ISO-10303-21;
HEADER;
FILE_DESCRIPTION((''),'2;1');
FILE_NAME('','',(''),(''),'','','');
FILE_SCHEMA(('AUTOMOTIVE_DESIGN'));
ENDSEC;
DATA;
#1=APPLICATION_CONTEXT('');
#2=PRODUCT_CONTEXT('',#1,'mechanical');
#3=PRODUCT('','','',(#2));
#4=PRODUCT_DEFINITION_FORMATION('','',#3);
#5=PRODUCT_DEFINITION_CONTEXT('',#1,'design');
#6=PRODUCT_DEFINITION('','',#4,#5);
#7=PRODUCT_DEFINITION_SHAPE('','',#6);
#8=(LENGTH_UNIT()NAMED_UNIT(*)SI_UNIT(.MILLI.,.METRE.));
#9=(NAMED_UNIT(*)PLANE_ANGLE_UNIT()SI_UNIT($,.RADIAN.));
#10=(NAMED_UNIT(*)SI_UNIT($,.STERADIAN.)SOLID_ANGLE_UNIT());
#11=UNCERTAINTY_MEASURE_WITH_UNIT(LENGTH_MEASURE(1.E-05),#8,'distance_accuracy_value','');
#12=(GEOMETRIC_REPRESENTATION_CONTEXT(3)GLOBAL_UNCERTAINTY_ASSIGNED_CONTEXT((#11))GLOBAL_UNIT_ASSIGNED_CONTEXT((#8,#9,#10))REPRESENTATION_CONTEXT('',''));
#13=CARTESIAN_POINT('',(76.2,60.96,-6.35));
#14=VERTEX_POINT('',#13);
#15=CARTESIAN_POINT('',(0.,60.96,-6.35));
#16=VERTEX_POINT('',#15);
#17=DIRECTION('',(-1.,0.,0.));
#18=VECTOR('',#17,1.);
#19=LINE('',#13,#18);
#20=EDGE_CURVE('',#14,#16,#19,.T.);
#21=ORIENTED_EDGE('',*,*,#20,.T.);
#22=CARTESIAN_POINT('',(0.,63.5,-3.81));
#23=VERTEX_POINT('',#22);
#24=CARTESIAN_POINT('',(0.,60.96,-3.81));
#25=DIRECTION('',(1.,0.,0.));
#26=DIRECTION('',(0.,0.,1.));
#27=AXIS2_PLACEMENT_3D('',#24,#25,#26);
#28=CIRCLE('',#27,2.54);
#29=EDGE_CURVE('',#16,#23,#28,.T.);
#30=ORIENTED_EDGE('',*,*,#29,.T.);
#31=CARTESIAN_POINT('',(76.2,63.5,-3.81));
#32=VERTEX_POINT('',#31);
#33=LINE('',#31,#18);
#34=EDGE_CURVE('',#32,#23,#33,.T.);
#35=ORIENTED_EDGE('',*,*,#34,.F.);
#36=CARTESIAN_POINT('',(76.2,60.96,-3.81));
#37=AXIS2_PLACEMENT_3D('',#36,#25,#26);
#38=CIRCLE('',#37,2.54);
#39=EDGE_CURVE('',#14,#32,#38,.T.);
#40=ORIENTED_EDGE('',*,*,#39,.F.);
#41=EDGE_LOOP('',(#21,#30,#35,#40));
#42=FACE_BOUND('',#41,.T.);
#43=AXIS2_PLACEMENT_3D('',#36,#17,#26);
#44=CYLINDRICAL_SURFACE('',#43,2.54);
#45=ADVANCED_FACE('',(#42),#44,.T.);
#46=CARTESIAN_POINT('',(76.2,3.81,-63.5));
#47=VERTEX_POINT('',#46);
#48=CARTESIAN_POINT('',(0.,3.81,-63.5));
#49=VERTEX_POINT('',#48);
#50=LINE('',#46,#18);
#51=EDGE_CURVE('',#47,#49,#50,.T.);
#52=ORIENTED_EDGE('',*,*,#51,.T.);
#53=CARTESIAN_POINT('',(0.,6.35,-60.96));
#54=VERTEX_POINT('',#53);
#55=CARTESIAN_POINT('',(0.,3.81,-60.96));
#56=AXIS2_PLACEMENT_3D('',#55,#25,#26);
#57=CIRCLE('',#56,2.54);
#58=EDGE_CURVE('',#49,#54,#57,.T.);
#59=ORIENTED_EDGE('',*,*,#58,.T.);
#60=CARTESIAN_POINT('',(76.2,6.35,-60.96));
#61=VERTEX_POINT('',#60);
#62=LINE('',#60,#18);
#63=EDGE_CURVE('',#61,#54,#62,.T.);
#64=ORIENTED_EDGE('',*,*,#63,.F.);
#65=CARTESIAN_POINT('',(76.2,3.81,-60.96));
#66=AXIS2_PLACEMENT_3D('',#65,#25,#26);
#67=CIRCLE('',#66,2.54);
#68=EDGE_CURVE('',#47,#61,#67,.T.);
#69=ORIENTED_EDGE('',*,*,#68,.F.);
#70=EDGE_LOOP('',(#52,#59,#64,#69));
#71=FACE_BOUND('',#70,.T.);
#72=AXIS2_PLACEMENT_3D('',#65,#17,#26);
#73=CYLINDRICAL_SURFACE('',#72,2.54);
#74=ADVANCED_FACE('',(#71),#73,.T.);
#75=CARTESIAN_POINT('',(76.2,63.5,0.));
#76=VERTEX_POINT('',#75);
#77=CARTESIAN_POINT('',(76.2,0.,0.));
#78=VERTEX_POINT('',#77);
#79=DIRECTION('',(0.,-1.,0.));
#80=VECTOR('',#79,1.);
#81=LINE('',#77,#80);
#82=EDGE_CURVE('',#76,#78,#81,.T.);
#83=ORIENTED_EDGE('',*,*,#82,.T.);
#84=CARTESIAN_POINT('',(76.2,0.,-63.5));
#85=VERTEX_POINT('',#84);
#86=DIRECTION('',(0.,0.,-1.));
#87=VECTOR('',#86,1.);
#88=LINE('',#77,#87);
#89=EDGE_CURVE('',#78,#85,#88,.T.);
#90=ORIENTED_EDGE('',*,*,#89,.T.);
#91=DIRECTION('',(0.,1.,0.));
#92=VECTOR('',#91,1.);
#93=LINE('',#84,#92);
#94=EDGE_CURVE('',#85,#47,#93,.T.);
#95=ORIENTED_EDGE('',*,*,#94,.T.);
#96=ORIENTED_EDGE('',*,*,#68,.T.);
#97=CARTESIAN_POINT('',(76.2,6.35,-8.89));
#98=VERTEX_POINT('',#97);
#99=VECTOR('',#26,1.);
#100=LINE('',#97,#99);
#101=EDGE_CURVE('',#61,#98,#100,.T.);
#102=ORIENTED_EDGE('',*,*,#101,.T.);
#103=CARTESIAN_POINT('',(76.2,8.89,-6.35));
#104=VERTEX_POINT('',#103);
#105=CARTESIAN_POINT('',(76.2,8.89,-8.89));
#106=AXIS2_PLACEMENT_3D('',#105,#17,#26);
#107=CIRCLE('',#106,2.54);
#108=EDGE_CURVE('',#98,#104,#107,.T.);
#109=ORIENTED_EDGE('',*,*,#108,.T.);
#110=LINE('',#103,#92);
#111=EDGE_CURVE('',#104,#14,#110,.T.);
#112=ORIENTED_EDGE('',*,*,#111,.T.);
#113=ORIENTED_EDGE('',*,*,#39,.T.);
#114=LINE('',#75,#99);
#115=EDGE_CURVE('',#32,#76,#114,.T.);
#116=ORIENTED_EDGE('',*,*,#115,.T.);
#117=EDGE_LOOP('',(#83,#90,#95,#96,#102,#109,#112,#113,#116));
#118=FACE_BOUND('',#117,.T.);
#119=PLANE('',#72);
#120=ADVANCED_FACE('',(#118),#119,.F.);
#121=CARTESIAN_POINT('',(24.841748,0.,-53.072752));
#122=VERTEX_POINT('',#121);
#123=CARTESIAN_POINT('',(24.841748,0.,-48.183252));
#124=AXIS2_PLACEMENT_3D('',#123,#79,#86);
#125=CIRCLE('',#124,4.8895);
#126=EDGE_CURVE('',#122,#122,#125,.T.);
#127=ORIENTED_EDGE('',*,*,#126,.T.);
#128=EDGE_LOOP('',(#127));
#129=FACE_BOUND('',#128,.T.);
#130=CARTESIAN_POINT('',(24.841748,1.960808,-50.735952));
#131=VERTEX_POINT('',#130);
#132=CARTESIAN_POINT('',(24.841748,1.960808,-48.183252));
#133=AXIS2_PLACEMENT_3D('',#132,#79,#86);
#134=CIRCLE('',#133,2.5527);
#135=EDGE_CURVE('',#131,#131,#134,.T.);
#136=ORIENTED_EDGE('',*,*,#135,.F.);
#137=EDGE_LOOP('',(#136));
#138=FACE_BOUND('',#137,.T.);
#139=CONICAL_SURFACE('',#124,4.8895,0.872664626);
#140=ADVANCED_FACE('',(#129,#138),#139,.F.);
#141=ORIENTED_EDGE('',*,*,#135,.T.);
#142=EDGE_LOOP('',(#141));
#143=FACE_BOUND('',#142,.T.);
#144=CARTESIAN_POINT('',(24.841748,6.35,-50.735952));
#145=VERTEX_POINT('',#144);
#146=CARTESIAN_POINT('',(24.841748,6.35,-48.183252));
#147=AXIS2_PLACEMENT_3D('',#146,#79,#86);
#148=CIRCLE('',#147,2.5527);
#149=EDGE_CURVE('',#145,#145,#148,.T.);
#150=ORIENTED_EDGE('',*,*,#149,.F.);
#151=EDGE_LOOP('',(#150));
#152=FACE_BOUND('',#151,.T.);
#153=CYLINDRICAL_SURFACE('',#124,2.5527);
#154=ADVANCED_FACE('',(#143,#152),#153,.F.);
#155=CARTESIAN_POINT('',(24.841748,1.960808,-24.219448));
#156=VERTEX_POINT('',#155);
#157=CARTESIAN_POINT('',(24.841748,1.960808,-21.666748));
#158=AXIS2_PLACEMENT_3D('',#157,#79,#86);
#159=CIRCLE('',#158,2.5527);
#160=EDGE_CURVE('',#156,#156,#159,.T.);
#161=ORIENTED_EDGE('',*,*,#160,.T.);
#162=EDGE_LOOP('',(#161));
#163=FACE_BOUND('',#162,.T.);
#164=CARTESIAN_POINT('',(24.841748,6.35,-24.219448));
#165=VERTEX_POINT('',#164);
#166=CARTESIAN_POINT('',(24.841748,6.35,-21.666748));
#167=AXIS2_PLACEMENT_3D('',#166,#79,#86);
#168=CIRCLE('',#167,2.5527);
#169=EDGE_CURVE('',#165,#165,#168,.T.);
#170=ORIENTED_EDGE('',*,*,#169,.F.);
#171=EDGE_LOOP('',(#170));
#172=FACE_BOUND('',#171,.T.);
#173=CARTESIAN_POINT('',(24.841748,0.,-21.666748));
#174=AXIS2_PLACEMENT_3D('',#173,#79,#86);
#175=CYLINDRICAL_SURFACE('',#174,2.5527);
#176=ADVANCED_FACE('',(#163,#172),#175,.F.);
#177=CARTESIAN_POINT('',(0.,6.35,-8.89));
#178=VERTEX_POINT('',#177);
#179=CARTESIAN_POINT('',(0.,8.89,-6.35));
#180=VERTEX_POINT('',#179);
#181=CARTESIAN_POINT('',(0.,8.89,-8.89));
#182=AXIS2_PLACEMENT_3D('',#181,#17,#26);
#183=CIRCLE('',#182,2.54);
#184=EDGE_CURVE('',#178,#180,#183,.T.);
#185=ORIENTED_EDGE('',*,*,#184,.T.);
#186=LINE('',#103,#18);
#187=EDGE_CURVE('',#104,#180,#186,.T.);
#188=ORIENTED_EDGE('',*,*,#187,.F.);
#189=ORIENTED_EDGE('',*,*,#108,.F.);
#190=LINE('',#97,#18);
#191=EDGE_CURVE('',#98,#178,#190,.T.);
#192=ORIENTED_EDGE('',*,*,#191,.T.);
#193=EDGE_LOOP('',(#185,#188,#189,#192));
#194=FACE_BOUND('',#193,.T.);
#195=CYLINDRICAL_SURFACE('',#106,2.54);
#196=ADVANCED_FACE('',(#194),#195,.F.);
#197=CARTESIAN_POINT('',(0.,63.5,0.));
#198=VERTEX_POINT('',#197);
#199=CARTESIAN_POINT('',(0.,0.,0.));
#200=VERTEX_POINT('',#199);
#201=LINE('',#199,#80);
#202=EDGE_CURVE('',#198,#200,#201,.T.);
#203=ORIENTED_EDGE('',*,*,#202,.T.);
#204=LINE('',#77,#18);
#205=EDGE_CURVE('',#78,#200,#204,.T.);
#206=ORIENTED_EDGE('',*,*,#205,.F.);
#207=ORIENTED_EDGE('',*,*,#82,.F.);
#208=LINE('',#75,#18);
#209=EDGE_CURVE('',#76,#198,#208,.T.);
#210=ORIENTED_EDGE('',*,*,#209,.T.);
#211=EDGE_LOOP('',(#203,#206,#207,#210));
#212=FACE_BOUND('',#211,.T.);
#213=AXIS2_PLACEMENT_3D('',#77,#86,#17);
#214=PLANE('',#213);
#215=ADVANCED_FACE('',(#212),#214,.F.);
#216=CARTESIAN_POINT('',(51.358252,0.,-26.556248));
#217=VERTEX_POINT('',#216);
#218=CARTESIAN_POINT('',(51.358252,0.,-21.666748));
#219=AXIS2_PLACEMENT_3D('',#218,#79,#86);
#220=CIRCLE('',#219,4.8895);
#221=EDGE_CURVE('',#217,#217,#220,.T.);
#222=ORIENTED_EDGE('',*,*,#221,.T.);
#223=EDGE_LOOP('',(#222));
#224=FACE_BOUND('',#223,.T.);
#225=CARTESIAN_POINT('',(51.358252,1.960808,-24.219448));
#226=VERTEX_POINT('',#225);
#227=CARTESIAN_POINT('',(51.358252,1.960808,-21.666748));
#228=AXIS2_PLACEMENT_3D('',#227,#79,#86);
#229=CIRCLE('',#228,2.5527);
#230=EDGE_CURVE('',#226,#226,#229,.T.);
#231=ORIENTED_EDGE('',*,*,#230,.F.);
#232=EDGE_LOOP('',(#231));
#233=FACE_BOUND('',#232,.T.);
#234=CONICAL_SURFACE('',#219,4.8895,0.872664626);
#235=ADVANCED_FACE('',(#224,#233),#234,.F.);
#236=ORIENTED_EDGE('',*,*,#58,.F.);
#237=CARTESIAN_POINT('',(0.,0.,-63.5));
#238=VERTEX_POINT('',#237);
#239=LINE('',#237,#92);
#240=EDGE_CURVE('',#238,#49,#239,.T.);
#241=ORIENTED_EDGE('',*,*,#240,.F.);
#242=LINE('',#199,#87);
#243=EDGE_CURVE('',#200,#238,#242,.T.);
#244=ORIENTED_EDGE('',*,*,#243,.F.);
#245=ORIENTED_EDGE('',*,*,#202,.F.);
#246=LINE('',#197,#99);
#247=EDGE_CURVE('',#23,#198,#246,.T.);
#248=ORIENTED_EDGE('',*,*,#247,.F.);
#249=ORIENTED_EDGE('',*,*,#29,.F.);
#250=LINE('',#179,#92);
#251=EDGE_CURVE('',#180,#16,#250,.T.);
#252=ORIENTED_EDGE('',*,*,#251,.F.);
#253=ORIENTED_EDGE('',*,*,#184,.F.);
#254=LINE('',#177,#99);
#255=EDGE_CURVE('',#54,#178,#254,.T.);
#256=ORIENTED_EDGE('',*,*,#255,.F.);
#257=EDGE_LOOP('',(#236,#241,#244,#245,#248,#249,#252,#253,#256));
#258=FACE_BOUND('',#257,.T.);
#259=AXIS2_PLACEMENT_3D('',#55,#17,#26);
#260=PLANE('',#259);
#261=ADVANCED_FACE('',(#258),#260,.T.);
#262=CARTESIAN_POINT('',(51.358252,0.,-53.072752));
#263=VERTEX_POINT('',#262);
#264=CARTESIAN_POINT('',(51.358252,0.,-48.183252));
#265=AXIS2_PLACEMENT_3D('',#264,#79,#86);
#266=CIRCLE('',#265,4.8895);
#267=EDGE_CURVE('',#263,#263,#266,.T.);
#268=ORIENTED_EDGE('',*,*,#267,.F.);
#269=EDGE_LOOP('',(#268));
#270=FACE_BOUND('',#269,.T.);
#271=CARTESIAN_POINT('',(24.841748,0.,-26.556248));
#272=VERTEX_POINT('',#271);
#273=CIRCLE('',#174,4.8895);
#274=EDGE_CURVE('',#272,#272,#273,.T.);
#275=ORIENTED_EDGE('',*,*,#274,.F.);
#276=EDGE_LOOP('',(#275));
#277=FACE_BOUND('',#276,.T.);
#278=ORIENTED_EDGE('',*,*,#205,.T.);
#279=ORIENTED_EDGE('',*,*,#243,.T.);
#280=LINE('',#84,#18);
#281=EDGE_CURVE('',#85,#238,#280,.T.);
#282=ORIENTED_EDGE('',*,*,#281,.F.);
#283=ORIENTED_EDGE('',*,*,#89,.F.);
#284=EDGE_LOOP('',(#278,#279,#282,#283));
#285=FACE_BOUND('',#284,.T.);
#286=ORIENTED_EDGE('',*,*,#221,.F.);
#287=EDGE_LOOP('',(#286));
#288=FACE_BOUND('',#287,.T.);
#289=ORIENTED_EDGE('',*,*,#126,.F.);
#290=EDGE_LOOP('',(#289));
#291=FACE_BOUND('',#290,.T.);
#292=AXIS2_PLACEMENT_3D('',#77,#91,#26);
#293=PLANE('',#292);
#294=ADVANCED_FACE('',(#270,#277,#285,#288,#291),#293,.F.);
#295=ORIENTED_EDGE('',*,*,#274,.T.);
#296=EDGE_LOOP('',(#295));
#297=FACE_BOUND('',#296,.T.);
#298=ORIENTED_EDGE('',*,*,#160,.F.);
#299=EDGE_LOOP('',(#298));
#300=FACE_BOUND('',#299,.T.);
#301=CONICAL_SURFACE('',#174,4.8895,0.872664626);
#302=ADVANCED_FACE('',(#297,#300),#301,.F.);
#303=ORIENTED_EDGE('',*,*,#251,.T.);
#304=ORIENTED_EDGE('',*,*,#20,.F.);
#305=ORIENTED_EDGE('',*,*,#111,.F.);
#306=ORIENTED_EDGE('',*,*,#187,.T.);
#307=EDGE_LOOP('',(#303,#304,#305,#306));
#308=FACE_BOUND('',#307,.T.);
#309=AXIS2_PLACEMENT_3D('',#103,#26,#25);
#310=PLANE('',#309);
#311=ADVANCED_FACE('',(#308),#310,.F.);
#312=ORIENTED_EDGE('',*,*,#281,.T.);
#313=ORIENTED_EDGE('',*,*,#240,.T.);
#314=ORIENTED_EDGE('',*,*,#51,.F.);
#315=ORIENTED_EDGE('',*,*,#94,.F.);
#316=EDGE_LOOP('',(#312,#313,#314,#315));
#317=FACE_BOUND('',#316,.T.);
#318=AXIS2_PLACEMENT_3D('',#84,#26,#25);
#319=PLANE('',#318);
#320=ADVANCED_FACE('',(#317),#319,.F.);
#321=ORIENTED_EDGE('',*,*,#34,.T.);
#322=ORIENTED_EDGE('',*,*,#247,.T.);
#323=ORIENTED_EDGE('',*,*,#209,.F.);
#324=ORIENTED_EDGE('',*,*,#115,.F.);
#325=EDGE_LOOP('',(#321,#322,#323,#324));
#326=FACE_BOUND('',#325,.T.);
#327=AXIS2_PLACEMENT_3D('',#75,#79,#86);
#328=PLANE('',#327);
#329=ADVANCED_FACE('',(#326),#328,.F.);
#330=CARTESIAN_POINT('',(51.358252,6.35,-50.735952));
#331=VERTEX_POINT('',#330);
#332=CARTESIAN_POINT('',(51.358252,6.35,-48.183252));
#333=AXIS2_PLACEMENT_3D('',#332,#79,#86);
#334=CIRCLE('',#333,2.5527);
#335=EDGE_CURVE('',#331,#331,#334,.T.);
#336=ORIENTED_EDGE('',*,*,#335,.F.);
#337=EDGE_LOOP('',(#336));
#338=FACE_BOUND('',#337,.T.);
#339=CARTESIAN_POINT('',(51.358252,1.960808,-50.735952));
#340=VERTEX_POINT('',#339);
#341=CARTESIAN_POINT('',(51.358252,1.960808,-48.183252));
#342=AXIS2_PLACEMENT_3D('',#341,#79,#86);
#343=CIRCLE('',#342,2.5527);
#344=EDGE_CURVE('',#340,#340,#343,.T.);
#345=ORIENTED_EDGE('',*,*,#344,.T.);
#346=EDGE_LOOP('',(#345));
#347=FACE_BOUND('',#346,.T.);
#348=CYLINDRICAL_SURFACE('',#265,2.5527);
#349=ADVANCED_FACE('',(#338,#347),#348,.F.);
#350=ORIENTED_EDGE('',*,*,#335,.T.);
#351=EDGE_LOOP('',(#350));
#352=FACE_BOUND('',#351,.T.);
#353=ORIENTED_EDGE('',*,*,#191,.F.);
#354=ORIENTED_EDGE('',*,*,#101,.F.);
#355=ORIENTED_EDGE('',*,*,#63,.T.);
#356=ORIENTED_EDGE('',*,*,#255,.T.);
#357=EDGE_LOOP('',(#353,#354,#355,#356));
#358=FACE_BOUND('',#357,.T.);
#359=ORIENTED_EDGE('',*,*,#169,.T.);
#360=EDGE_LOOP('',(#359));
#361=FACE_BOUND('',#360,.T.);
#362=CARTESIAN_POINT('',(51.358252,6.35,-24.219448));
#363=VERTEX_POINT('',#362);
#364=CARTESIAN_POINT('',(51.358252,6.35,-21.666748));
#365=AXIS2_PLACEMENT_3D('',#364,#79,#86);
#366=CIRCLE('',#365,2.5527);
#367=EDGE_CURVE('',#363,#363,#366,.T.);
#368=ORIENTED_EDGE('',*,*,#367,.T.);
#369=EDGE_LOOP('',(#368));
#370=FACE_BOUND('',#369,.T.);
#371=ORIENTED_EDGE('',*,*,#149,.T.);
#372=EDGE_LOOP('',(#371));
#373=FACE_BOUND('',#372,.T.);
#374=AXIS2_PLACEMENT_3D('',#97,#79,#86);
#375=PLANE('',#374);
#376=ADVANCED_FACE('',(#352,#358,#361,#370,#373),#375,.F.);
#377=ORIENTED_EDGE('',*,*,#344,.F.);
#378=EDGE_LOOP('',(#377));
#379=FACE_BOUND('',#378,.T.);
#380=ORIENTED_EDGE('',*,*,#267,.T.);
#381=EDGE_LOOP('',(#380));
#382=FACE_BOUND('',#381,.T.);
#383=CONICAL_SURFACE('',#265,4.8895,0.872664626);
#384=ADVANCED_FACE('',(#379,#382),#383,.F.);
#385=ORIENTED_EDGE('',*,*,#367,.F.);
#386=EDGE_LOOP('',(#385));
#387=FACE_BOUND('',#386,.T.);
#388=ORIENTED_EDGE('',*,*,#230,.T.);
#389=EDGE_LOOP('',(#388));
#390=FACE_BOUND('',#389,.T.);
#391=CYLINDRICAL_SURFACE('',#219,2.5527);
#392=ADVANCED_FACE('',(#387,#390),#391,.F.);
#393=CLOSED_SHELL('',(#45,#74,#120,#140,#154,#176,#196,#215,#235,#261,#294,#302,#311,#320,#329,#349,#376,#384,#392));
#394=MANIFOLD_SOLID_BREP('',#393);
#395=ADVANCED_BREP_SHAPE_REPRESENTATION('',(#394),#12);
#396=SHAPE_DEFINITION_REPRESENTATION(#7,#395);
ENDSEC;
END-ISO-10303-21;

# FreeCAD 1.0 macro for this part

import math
import FreeCAD as App
import Part
import Sketcher
Q = App.Units.Quantity

doc = App.newDocument("Part")
body = doc.addObject("PartDesign::Body", "Body")

# Sketch on YZ plane
sketch1 = doc.addObject("Sketcher::SketchObject", "Sketch")
body.addObject(sketch1)
sketch1.AttachmentSupport = (doc.YZ_Plane, [""])
sketch1.MapMode = "FlatFace"
sketch1.addGeometry([
    Part.LineSegment(App.Vector(63.5, 0, 0), App.Vector(0, 0, 0)),  # 0
    Part.LineSegment(App.Vector(0, 0, 0), App.Vector(0, -63.5, 0)),  # 1
    Part.LineSegment(App.Vector(0, -63.5, 0), App.Vector(3.8, -63.5, 0)),  # 2
    Part.ArcOfCircle(Part.Circle(App.Vector(3.8, -61, 0), App.Vector(0, 0, 1), 2.5), math.radians(-90), math.radians(0)),  # 3
    Part.LineSegment(App.Vector(6.3, -61, 0), App.Vector(6.3, -8.9, 0)),  # 4
    Part.ArcOfCircle(Part.Circle(App.Vector(8.9, -8.9, 0), App.Vector(0, 0, 1), 2.5), math.radians(90), math.radians(180)),  # 5
    Part.LineSegment(App.Vector(8.9, -6.3, 0), App.Vector(61, -6.3, 0)),  # 6
    Part.ArcOfCircle(Part.Circle(App.Vector(61, -3.8, 0), App.Vector(0, 0, 1), 2.5), math.radians(-90), math.radians(0)),  # 7
    Part.LineSegment(App.Vector(63.5, -3.8, 0), App.Vector(63.5, 0, 0)),  # 8
], False)
sketch1.addConstraint([
    Sketcher.Constraint("Coincident", 0, 2, 1, 1),
    Sketcher.Constraint("Coincident", 1, 2, 2, 1),
    Sketcher.Constraint("Tangent", 2, 2, 3, 1),
    Sketcher.Constraint("Tangent", 3, 2, 4, 1),
    Sketcher.Constraint("Tangent", 4, 2, 5, 2),
    Sketcher.Constraint("Tangent", 5, 1, 6, 1),
    Sketcher.Constraint("Tangent", 6, 2, 7, 1),
    Sketcher.Constraint("Tangent", 7, 2, 8, 1),
    Sketcher.Constraint("Coincident", 8, 2, 0, 1),
    Sketcher.Constraint("Horizontal", 0),
    Sketcher.Constraint("Vertical", 1),
    Sketcher.Constraint("Horizontal", 2),
    Sketcher.Constraint("Vertical", 4),
    Sketcher.Constraint("Horizontal", 6),
    Sketcher.Constraint("Vertical", 8),
    Sketcher.Constraint("Coincident", 0, 2, -1, 1),
    Sketcher.Constraint("Equal", 3, 5),
    Sketcher.Constraint("Equal", 5, 7),
    Sketcher.Constraint("Equal", 0, 1),
    Sketcher.Constraint("Equal", 6, 4),
    Sketcher.Constraint("Radius", 3, Q("0.1 in")),
    Sketcher.Constraint("DistanceX", 0, 2, 0, 1, Q("2.5 in")),
    Sketcher.Constraint("DistanceX", 2, 1, 2, 2, Q("0.15 in")),
])
pad1 = doc.addObject("PartDesign::Pad", "Pad")
body.addObject(pad1)
pad1.Profile = sketch1
pad1.Length = Q("3 in")

# Sketch on XZ plane
sketch2 = doc.addObject("Sketcher::SketchObject", "Sketch001")
body.addObject(sketch2)
sketch2.AttachmentSupport = (doc.XZ_Plane, [""])
sketch2.MapMode = "FlatFace"
sketch2.addGeometry([
    Part.Circle(App.Vector(24.8, -48.2, 0), App.Vector(0, 0, 1), 2.6),
    Part.Circle(App.Vector(51.4, -48.2, 0), App.Vector(0, 0, 1), 2.6),
    Part.Circle(App.Vector(51.4, -21.7, 0), App.Vector(0, 0, 1), 2.6),
    Part.Circle(App.Vector(24.8, -21.7, 0), App.Vector(0, 0, 1), 2.6),
], False)
sketch2.addConstraint([
    Sketcher.Constraint("Equal", 0, 1),
    Sketcher.Constraint("Equal", 1, 2),
    Sketcher.Constraint("Equal", 2, 3),
    Sketcher.Constraint("Horizontal", 0, 3, 1, 3),
    Sketcher.Constraint("Horizontal", 2, 3, 3, 3),
    Sketcher.Constraint("Vertical", 1, 3, 2, 3),
    Sketcher.Constraint("Vertical", 0, 3, 3, 3),
    Sketcher.Constraint("Diameter", 0, Q("0.201 in")),
    Sketcher.Constraint("DistanceX", -1, 1, 0, 3, 24.841748),
    Sketcher.Constraint("DistanceY", 0, 3, -1, 1, 48.183252),
    Sketcher.Constraint("DistanceX", -1, 1, 1, 3, 51.358252),
    Sketcher.Constraint("DistanceY", 2, 3, -1, 1, 21.666748),
])
doc.recompute()
hole = doc.addObject("PartDesign::Hole", "Hole")
body.addObject(hole)
hole.Profile = sketch2
hole.ThreadType = "None"
hole.Diameter = Q("0.201 in")
hole.DepthType = "ThroughAll"
hole.HoleCutType = "Countersink"
hole.HoleCutDiameter = Q("0.385 in")
hole.HoleCutCountersinkAngle = 100

doc.recompute()
